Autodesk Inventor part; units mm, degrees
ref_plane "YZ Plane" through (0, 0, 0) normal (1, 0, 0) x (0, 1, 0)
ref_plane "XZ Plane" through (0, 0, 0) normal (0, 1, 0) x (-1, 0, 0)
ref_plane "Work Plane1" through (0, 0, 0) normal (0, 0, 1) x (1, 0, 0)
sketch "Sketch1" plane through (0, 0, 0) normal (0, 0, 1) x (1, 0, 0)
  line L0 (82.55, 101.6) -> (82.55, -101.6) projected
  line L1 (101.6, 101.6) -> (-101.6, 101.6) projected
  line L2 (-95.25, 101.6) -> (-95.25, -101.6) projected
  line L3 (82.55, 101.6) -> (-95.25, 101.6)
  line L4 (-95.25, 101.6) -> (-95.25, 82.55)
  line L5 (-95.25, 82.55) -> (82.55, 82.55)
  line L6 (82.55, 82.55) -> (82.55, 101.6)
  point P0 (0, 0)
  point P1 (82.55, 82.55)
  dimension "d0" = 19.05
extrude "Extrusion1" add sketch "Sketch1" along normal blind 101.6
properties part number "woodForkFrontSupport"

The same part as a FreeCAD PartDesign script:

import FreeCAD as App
import Part
import Sketcher
from FreeCAD import Vector
Q = App.Units.Quantity

doc = App.newDocument("Part")
params = doc.addObject("Spreadsheet::Sheet", "Params")
for row, (alias, value) in enumerate([
    ("sketch1_height", "0.75 in"),
    ("sketch1_width", "7 in"),
    ("pad1_length", "4 in"),
], start=1):
    params.set(f"A{row}", alias)
    params.set(f"B{row}", "=" + value)
    params.setAlias(f"B{row}", alias)

body = doc.addObject("PartDesign::Body", "Body")

# Sketch on XY plane
sketch1 = body.newObject("Sketcher::SketchObject", "Sketch")
sketch1.AttachmentSupport = (doc.getObject("XY_Plane"), [""])
sketch1.MapMode = "FlatFace"
sketch1.addGeometry(Part.LineSegment(Vector(83, 83, 0), Vector(83, 102, 0)), False)
sketch1.addGeometry(Part.LineSegment(Vector(83, 102, 0), Vector(-95, 102, 0)), False)
sketch1.addGeometry(Part.LineSegment(Vector(-95, 102, 0), Vector(-95, 83, 0)), False)
sketch1.addGeometry(Part.LineSegment(Vector(-95, 83, 0), Vector(83, 83, 0)), False)
sketch1.addConstraint(Sketcher.Constraint("Coincident", 0, 2, 1, 1))
sketch1.addConstraint(Sketcher.Constraint("Coincident", 1, 2, 2, 1))
sketch1.addConstraint(Sketcher.Constraint("Coincident", 2, 2, 3, 1))
sketch1.addConstraint(Sketcher.Constraint("Coincident", 3, 2, 0, 1))
sketch1.addConstraint(Sketcher.Constraint("Vertical", 0))
sketch1.addConstraint(Sketcher.Constraint("Horizontal", 1))
sketch1.addConstraint(Sketcher.Constraint("Vertical", 2))
sketch1.addConstraint(Sketcher.Constraint("Horizontal", 3))
sketch1.addConstraint(Sketcher.Constraint("DistanceY", 0, 1, 0, 2, Q("0.75 in")))
sketch1.addConstraint(Sketcher.Constraint("DistanceX", 1, 2, 1, 1, Q("7 in")))
sketch1.addConstraint(Sketcher.Constraint("DistanceY", -1, 1, 0, 2, Q("4 in")))
sketch1.addConstraint(Sketcher.Constraint("DistanceX", -1, 1, 0, 2, Q("3.25 in")))
sketch1.setExpression("Constraints[8]", "Params.sketch1_height")
sketch1.setExpression("Constraints[9]", "Params.sketch1_width")
pad1 = body.newObject("PartDesign::Pad", "Pad")
pad1.Profile = sketch1
pad1.setExpression("Length", "Params.pad1_length")

doc.recompute()
